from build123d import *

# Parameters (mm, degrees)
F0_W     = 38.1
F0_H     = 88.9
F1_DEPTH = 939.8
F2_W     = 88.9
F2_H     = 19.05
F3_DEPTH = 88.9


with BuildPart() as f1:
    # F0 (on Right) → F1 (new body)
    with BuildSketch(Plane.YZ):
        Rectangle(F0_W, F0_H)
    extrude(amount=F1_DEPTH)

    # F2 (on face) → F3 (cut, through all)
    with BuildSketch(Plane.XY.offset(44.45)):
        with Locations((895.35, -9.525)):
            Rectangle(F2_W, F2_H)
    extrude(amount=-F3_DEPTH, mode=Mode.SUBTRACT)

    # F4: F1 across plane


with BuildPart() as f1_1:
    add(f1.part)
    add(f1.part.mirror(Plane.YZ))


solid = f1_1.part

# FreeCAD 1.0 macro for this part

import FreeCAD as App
import Part
import Sketcher

V = App.Vector
Q = App.Units.Quantity


def add_polygon(sketch, points):
    """Adds a closed chain of lines whose ends are joined by coincident constraints."""
    first, n = sketch.GeometryCount, len(points)
    for a, b in zip(points, points[1:] + points[:1]):
        sketch.addGeometry(Part.LineSegment(App.Vector(*a, 0), App.Vector(*b, 0)), False)
    for i in range(n):
        sketch.addConstraint(Sketcher.Constraint("Coincident", first + i, 2, first + (i + 1) % n, 1))

doc = App.newDocument("Part")
body = doc.addObject("PartDesign::Body", "Body")

# Sketch on YZ plane
sketch1 = body.newObject("Sketcher::SketchObject", "Sketch")
sketch1.AttachmentSupport = (doc.getObject("YZ_Plane"), [""])
sketch1.MapMode = "FlatFace"
add_polygon(sketch1, [(-19.05, 44.45), (-19.05, -44.45), (19.05, -44.45), (19.05, 44.45)])  # lines 0-3
sketch1.addConstraint([
    Sketcher.Constraint("Vertical", 0),
    Sketcher.Constraint("Horizontal", 1),
    Sketcher.Constraint("Vertical", 2),
    Sketcher.Constraint("Horizontal", 3),
    Sketcher.Constraint("Symmetric", 0, 2, 2, 2, -1, 1),
    Sketcher.Constraint("DistanceX", 1, 1, 1, 2, Q("1.5 in")),
    Sketcher.Constraint("DistanceY", 0, 2, 0, 1, Q("3.5 in")),
])
pad1 = body.newObject("PartDesign::Pad", "Pad")
pad1.Profile = sketch1
pad1.Length = Q("37 in")

# Sketch on XY plane
sketch2 = body.newObject("Sketcher::SketchObject", "Sketch001")
sketch2.AttachmentSupport = (doc.getObject("XY_Plane"), [""])
sketch2.MapMode = "FlatFace"
sketch2.AttachmentOffset = App.Placement(V(0, 0, 1.75 * 25.4), App.Rotation())
add_polygon(sketch2, [(850.9, 0), (850.9, -19.05), (939.8, -19.05), (939.8, 0)])  # lines 0-3
sketch2.addConstraint([
    Sketcher.Constraint("Vertical", 0),
    Sketcher.Constraint("Horizontal", 1),
    Sketcher.Constraint("Vertical", 2),
    Sketcher.Constraint("Horizontal", 3),
    Sketcher.Constraint("PointOnObject", 2, 2, -1),
    Sketcher.Constraint("DistanceX", 1, 1, 1, 2, Q("3.5 in")),
    Sketcher.Constraint("DistanceX", -1, 1, 1, 2, Q("37 in")),
    Sketcher.Constraint("DistanceY", 0, 2, 0, 1, Q("0.75 in")),
])
pocket1 = body.newObject("PartDesign::Pocket", "Pocket")
pocket1.Profile = sketch2
pocket1.Type = "ThroughAll"
body2 = doc.addObject("PartDesign::Body", "Body001")
doc.recompute()

body2.BaseFeature = body
doc.recompute()

mirroring = doc.addObject("Part::Mirroring", "Mirroring")
mirroring.Source = body
mirroring.Base = V(0, 0, 0)
mirroring.Normal = V(1, 0, 0)
body3 = doc.addObject("PartDesign::Body", "Body002")
body3.BaseFeature = mirroring
boolean = body2.newObject("PartDesign::Boolean", "Boolean")
boolean.Type = "Fuse"
boolean.addObjects([body3])
doc.recompute()
mirroring.Visibility = False

doc.recompute()
